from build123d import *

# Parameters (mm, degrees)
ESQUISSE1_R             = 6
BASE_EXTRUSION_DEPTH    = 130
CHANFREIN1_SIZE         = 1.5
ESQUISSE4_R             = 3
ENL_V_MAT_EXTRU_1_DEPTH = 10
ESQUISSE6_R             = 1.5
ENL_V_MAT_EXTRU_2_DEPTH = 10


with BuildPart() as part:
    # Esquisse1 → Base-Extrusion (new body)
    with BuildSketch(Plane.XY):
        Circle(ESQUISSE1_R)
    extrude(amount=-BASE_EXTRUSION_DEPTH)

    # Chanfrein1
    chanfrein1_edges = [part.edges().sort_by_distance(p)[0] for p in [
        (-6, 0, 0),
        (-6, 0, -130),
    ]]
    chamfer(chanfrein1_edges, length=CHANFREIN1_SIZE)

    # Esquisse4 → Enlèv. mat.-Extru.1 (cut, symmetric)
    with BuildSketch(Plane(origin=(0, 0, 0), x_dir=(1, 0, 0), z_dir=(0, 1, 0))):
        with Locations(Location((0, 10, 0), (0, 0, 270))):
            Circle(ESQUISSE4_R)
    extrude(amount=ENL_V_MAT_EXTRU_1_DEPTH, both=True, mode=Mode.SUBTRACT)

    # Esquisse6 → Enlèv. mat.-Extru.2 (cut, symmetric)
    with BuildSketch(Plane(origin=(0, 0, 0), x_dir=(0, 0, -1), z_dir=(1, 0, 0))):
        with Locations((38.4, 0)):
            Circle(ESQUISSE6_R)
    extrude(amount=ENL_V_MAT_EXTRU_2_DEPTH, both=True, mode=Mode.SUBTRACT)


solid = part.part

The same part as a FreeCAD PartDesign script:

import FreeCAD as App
import Part
import Sketcher
from FreeCAD import Vector
Q = App.Units.Quantity


def edges_at(feature, points):
    """Names of the edges that pass closest to the given points."""
    edges = feature.Shape.Edges
    near = lambda p: min(range(len(edges)), key=lambda i: edges[i].distToShape(Part.Vertex(*p))[0])
    return sorted({f"Edge{near(p) + 1}" for p in points})

doc = App.newDocument("Part")
body = doc.addObject("PartDesign::Body", "Body")

sketch1 = body.newObject("Sketcher::SketchObject", "Sketch")
sketch1.AttachmentSupport = (doc.getObject("XY_Plane"), [""])
sketch1.MapMode = "FlatFace"
sketch1.addGeometry(Part.Circle(Vector(0, 0, 0), Vector(0, 0, 1), 6), False)
sketch1.addConstraint([
    Sketcher.Constraint("Coincident", 0, 3, -1, 1),
    Sketcher.Constraint("Diameter", 0, Q("12 mm")),
])
pad1 = body.newObject("PartDesign::Pad", "Pad")
pad1.Profile = sketch1
pad1.Length = 130
pad1.Reversed = True
doc.recompute()

chamfer = body.newObject("PartDesign::Chamfer", "Chamfer")
chamfer.Base = (pad1, edges_at(pad1, [(-6, 0, 0), (-6, 0, -130)]))
chamfer.Size = 1.5

sketch2 = body.newObject("Sketcher::SketchObject", "Sketch001")
sketch2.AttachmentSupport = (doc.getObject("XZ_Plane"), [""])
sketch2.MapMode = "FlatFace"
sketch2.addGeometry(Part.Circle(Vector(0, -10, 0), Vector(0, 0, 1), 3), False)
sketch2.addConstraint([
    Sketcher.Constraint("PointOnObject", 0, 3, -2),
    Sketcher.Constraint("Diameter", 0, Q("6 mm")),
    Sketcher.Constraint("DistanceY", 0, 3, -1, 1, Q("10 mm")),
])
pocket1 = body.newObject("PartDesign::Pocket", "Pocket")
pocket1.Profile = sketch2
pocket1.Length = 20
pocket1.Midplane = True

sketch3 = body.newObject("Sketcher::SketchObject", "Sketch002")
sketch3.AttachmentSupport = (doc.getObject("YZ_Plane"), [""])
sketch3.MapMode = "FlatFace"
sketch3.addGeometry(Part.Circle(Vector(0, -38.4, 0), Vector(0, 0, 1), 1.5), False)
sketch3.addConstraint([
    Sketcher.Constraint("PointOnObject", 0, 3, -2),
    Sketcher.Constraint("Diameter", 0, Q("3 mm")),
    Sketcher.Constraint("DistanceY", 0, 3, -1, 1, Q("38.4 mm")),
])
pocket2 = body.newObject("PartDesign::Pocket", "Pocket001")
pocket2.Profile = sketch3
pocket2.Length = 20
pocket2.Midplane = True

doc.recompute()
